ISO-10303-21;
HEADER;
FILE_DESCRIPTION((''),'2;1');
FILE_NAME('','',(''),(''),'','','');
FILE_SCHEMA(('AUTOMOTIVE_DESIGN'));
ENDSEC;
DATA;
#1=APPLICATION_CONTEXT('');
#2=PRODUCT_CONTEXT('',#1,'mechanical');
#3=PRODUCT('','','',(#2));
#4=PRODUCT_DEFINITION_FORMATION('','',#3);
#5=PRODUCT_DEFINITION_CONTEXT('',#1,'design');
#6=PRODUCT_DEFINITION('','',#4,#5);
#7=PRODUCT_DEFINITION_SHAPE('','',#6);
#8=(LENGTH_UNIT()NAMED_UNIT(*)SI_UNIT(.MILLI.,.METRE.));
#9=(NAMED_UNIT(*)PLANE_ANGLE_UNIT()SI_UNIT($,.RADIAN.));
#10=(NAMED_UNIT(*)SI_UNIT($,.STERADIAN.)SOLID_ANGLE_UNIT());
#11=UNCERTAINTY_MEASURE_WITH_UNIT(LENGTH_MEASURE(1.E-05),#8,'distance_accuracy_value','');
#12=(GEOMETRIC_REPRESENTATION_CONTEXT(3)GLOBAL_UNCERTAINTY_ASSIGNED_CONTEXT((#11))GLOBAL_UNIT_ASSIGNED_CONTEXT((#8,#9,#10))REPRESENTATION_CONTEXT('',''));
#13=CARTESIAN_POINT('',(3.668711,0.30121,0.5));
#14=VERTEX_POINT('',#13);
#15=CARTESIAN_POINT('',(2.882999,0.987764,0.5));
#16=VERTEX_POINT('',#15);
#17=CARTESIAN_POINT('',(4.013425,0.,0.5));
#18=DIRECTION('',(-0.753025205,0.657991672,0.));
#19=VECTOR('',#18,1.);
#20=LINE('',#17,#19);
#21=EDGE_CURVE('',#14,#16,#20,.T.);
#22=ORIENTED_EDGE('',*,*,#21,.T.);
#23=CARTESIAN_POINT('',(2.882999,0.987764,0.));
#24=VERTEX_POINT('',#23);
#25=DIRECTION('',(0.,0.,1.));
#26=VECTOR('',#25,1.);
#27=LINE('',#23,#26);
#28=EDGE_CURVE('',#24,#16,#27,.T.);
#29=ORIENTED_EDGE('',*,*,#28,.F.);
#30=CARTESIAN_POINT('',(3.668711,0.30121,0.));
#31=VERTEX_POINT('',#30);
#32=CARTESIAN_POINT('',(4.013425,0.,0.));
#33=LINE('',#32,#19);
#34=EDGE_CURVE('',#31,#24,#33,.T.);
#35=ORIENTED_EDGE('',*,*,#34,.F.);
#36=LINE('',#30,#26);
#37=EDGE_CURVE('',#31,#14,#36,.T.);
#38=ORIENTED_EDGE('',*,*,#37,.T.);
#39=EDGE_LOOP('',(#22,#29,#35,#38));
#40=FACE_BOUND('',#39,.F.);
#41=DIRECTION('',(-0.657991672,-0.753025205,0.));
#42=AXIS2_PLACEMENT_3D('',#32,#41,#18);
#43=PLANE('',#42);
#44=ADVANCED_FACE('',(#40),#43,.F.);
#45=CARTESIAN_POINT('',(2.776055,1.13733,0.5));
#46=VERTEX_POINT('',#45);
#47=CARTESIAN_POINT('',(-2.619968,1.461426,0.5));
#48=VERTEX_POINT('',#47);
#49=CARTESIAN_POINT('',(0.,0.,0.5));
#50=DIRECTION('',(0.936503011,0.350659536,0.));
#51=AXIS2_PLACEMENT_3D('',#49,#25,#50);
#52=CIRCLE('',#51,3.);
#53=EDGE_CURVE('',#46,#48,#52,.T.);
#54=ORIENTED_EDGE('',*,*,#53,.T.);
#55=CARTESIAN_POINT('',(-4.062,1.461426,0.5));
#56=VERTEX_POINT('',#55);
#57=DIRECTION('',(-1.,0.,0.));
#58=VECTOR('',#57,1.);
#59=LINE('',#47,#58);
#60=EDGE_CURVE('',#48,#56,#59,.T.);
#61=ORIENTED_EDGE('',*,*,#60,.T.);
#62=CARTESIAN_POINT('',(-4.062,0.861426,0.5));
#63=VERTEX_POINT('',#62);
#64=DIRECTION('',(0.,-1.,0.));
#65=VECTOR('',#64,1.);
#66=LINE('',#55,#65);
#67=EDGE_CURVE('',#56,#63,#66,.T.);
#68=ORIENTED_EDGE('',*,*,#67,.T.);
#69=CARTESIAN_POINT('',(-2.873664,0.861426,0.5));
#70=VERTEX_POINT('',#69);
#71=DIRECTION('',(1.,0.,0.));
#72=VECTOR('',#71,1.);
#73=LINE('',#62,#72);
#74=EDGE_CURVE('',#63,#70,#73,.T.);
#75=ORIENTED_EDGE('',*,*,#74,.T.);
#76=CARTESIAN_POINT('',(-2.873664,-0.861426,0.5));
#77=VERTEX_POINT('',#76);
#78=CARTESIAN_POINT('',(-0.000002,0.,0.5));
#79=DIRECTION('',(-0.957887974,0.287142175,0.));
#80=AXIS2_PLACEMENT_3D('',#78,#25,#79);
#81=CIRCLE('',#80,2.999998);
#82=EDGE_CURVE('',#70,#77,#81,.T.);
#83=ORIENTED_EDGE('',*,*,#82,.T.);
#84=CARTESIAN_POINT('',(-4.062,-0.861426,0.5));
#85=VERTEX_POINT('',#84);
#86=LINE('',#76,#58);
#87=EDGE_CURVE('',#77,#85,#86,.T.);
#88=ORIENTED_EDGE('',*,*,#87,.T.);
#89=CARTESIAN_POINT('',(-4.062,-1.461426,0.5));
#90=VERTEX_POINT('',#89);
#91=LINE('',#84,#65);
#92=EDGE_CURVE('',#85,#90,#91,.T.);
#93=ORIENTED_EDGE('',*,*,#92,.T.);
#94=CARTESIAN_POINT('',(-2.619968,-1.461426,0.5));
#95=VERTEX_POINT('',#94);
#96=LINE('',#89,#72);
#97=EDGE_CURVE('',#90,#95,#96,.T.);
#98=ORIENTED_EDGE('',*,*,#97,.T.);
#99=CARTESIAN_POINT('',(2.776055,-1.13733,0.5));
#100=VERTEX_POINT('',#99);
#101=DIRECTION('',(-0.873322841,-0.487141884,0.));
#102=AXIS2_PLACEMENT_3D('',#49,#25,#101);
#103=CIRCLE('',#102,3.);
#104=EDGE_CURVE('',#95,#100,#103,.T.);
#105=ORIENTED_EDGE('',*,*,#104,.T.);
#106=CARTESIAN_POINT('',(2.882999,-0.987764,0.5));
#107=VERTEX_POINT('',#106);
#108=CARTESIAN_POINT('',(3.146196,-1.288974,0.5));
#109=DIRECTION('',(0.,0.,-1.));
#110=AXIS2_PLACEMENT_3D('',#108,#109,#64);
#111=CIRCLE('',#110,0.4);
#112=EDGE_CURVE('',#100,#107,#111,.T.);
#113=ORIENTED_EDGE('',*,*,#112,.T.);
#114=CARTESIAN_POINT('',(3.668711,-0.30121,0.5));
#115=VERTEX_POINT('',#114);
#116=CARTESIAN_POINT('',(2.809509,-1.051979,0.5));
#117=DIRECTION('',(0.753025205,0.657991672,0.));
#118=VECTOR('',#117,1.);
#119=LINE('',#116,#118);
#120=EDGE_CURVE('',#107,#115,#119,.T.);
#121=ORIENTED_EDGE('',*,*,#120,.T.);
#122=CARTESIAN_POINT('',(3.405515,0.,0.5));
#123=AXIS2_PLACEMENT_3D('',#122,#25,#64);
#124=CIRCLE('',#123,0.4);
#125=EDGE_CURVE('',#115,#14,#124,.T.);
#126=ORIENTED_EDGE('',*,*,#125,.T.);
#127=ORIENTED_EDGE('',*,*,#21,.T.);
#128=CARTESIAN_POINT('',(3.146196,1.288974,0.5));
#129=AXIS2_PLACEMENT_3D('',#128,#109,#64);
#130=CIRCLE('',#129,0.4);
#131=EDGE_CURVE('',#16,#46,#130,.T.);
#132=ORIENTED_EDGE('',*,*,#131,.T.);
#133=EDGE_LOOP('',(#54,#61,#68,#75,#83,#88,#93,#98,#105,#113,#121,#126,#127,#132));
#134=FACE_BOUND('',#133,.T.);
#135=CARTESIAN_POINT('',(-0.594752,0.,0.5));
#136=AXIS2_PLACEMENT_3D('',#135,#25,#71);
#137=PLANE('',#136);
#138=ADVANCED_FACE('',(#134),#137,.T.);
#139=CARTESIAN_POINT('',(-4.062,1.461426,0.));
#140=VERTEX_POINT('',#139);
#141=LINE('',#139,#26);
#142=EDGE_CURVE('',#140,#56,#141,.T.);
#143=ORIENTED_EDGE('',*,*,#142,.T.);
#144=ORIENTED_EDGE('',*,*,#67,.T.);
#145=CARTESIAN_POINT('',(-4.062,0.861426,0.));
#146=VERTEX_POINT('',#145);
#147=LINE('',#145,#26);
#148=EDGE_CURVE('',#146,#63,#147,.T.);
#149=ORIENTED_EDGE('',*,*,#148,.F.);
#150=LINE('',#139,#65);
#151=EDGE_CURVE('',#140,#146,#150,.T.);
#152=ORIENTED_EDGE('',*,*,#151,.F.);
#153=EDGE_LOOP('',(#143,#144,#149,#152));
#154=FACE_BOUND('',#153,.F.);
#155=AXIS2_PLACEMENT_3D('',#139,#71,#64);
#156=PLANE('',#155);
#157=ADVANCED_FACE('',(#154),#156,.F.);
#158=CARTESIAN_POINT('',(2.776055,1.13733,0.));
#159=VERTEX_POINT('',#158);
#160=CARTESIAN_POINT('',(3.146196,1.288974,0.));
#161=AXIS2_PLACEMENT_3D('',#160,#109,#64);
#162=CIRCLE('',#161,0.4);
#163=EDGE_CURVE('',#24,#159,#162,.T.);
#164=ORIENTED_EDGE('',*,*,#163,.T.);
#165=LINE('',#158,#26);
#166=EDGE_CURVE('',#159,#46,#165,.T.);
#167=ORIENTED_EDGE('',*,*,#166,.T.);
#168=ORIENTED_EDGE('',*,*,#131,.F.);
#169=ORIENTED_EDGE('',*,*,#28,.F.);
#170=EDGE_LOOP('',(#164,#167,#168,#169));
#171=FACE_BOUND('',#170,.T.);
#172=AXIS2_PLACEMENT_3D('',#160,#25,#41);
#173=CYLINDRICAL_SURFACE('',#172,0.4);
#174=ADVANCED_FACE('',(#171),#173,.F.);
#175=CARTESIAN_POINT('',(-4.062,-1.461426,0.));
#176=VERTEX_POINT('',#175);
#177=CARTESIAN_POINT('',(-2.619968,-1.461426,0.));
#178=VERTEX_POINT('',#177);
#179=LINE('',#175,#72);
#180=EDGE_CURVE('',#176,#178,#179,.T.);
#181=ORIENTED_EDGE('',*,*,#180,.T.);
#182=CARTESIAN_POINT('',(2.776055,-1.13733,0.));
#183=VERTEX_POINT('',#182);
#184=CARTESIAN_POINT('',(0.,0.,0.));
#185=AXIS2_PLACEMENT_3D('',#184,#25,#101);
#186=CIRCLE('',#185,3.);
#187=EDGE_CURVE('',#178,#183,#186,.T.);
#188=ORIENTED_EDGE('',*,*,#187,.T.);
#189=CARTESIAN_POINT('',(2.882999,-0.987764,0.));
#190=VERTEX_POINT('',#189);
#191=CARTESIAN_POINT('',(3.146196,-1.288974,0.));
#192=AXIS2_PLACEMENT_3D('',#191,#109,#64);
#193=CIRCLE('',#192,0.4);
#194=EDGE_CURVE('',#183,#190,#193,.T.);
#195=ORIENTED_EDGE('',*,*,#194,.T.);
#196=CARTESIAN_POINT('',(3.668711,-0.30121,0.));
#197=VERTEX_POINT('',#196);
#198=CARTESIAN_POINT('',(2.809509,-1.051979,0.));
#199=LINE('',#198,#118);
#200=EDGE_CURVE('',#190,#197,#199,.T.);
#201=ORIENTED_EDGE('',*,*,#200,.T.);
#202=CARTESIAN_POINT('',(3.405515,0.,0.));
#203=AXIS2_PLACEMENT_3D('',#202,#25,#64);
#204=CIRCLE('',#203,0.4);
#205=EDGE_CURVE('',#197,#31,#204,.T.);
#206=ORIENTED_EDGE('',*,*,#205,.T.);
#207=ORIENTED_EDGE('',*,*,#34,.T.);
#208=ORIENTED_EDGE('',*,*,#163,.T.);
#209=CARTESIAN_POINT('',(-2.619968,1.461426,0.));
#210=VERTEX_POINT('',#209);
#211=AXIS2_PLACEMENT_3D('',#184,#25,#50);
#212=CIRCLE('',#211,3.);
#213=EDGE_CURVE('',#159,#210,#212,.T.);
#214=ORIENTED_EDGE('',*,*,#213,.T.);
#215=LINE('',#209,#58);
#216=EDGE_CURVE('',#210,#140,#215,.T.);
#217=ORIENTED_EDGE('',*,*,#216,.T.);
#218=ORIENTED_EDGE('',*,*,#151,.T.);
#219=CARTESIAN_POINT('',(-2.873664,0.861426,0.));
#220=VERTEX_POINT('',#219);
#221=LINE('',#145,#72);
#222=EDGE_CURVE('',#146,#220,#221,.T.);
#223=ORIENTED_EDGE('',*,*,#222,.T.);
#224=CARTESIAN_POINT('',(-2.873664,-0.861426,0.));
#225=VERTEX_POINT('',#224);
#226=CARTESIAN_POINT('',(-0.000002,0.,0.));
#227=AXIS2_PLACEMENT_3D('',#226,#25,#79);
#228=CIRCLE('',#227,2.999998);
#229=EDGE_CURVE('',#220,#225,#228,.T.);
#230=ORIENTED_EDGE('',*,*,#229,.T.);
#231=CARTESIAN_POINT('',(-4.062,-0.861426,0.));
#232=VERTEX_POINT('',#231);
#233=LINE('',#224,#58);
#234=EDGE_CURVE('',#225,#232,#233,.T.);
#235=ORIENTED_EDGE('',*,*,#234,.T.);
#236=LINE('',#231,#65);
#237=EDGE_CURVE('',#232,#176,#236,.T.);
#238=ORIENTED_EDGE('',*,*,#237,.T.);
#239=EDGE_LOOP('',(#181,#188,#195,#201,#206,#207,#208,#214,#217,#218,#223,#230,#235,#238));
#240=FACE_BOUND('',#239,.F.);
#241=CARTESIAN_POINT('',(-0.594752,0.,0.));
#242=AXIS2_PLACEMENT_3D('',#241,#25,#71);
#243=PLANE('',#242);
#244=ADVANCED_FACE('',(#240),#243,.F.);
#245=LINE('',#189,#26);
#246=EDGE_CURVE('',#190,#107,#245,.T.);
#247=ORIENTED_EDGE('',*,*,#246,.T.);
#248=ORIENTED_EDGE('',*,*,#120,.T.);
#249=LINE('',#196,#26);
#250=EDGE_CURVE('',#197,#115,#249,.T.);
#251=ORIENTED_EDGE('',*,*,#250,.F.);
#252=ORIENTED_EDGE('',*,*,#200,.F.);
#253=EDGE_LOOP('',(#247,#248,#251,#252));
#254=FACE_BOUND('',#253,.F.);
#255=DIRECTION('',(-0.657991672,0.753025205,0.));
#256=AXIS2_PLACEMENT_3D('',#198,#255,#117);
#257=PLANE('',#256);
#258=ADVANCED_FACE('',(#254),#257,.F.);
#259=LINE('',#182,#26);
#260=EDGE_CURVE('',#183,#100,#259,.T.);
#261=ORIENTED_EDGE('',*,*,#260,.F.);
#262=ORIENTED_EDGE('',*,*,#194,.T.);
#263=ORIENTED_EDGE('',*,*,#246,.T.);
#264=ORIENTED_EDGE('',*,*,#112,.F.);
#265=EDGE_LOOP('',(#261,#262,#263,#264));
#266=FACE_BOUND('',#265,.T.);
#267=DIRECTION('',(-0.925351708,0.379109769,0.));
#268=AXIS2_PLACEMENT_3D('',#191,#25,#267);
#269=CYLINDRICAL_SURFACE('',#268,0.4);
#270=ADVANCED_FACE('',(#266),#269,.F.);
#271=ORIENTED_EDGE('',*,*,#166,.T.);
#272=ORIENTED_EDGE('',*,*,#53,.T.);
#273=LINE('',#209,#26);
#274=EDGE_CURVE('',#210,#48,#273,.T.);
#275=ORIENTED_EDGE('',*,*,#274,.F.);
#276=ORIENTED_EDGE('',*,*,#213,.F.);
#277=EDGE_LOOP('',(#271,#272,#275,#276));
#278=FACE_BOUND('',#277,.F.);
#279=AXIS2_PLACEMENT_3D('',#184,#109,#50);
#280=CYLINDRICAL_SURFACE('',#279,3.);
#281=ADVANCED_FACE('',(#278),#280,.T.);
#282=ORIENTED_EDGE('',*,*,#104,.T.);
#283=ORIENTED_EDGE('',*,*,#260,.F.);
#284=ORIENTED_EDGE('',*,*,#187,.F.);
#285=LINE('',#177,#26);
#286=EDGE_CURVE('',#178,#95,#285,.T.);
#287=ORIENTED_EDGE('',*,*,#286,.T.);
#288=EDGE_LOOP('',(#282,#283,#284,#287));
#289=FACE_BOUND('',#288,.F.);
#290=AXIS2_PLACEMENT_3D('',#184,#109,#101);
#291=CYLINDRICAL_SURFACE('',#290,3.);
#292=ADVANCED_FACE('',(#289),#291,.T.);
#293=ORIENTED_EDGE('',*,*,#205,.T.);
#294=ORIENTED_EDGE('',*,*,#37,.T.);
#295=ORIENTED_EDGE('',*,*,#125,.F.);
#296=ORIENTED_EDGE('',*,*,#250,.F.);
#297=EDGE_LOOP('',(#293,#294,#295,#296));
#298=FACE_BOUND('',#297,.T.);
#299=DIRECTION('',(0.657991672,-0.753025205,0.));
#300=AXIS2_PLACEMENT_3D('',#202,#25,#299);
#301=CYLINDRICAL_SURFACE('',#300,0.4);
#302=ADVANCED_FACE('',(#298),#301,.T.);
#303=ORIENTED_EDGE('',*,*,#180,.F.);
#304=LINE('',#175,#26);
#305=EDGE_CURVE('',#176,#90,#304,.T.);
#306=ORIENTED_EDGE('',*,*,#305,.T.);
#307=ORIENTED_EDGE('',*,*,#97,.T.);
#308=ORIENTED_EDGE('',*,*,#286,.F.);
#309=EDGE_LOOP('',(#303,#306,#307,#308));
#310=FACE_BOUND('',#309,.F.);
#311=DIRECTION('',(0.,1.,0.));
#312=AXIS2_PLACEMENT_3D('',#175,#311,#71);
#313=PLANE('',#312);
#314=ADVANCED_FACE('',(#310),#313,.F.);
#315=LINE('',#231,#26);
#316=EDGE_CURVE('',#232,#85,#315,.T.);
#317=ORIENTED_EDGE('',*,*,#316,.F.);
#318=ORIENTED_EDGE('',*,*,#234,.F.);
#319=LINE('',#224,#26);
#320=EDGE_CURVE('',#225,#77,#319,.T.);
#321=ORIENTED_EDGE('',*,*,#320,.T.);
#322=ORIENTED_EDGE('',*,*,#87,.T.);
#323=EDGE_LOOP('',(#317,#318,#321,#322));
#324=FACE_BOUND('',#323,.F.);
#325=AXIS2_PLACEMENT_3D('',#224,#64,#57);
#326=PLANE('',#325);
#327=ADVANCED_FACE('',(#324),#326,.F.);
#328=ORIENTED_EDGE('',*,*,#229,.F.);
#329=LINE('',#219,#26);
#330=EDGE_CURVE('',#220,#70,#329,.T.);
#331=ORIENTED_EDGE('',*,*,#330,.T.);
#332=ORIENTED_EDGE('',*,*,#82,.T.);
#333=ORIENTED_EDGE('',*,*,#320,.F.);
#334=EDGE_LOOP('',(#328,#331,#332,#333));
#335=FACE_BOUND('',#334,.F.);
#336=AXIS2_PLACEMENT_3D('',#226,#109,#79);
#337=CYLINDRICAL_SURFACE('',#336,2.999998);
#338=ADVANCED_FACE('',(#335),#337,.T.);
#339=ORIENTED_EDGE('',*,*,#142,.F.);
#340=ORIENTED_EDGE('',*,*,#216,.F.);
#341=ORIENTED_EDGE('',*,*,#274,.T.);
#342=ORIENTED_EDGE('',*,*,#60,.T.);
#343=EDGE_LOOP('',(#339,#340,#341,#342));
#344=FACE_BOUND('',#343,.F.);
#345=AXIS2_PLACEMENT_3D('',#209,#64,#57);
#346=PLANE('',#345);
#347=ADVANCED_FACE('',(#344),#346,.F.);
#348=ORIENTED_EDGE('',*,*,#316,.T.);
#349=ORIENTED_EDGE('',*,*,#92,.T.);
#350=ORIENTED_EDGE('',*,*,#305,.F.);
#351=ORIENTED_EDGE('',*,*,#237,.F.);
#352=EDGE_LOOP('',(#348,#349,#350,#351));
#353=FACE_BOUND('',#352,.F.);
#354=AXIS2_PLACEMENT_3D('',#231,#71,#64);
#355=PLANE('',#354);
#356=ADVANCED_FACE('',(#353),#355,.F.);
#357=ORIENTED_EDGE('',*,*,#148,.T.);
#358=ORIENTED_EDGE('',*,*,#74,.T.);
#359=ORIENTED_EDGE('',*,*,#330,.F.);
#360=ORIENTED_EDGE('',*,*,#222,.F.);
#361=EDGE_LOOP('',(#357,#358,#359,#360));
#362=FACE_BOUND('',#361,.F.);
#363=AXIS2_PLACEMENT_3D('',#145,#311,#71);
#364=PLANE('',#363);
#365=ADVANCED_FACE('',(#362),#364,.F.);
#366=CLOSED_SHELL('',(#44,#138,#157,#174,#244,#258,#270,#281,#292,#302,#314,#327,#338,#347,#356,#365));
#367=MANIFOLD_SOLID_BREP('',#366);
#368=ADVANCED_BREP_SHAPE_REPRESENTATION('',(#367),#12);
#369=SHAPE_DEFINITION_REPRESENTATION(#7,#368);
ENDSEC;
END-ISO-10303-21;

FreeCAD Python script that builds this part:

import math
import FreeCAD as App
import Part
import Sketcher

V = App.Vector
Q = App.Units.Quantity


def edges_at(feature, points):
    """Names of the edges that pass closest to the given points."""
    edges = feature.Shape.Edges
    near = lambda p: min(range(len(edges)), key=lambda i: edges[i].distToShape(Part.Vertex(*p))[0])
    return sorted({f"Edge{near(p) + 1}" for p in points})

doc = App.newDocument("Part")
body = doc.addObject("PartDesign::Body", "Body")

# Sketch on XY plane
sketch1 = doc.addObject("Sketcher::SketchObject", "Sketch")
body.addObject(sketch1)
sketch1.AttachmentSupport = (doc.XY_Plane, [""])
sketch1.MapMode = "FlatFace"
sketch1.addGeometry(Part.LineSegment(V(-4.062, 0.861426, 0), V(-2.873664, 0.861426, 0)), False)
sketch1.addGeometry(Part.ArcOfCircle(Part.Circle(V(-0.000002, 0, 0), V(0, 0, 1), 2.999998), math.radians(163.313061), math.radians(196.686939)), False)
sketch1.addGeometry(Part.LineSegment(V(-2.873664, -0.861426, 0), V(-4.062, -0.861426, 0)), False)
sketch1.addGeometry(Part.LineSegment(V(-4.062, -0.861426, 0), V(-4.062, -1.461426, 0)), False)
sketch1.addGeometry(Part.LineSegment(V(-4.062, -1.461426, 0), V(-2.619968, -1.461426, 0)), False)
sketch1.addGeometry(Part.ArcOfCircle(Part.Circle(V(0, 0, 0), V(0, 0, 1), 3), math.radians(-150.847102), math.radians(-20.527661)), False)
sketch1.addGeometry(Part.LineSegment(V(2.809509, -1.051979, 0), V(4.013425, 0, 0)), False)
sketch1.addGeometry(Part.LineSegment(V(4.013425, 0, 0), V(2.809509, 1.051979, 0)), False)
sketch1.addGeometry(Part.ArcOfCircle(Part.Circle(V(0, 0, 0), V(0, 0, 1), 3), math.radians(20.527661), math.radians(150.847102)), False)
sketch1.addGeometry(Part.LineSegment(V(-2.619968, 1.461426, 0), V(-4.062, 1.461426, 0)), False)
sketch1.addGeometry(Part.LineSegment(V(-4.062, 1.461426, 0), V(-4.062, 0.861426, 0)), False)
sketch1.addConstraint(Sketcher.Constraint("Coincident", 0, 2, 1, 1))
sketch1.addConstraint(Sketcher.Constraint("Coincident", 1, 2, 2, 1))
sketch1.addConstraint(Sketcher.Constraint("Coincident", 2, 2, 3, 1))
sketch1.addConstraint(Sketcher.Constraint("Coincident", 3, 2, 4, 1))
sketch1.addConstraint(Sketcher.Constraint("Coincident", 4, 2, 5, 1))
sketch1.addConstraint(Sketcher.Constraint("Coincident", 5, 2, 6, 1))
sketch1.addConstraint(Sketcher.Constraint("Coincident", 6, 2, 7, 1))
sketch1.addConstraint(Sketcher.Constraint("Coincident", 7, 2, 8, 1))
sketch1.addConstraint(Sketcher.Constraint("Coincident", 8, 2, 9, 1))
sketch1.addConstraint(Sketcher.Constraint("Coincident", 9, 2, 10, 1))
sketch1.addConstraint(Sketcher.Constraint("Coincident", 10, 2, 0, 1))
sketch1.addConstraint(Sketcher.Constraint("Horizontal", 0))
sketch1.addConstraint(Sketcher.Constraint("Horizontal", 2))
sketch1.addConstraint(Sketcher.Constraint("Vertical", 3))
sketch1.addConstraint(Sketcher.Constraint("Horizontal", 4))
sketch1.addConstraint(Sketcher.Constraint("Horizontal", 9))
sketch1.addConstraint(Sketcher.Constraint("Vertical", 10))
sketch1.addConstraint(Sketcher.Constraint("Coincident", 1, 3, -1, 1))
sketch1.addConstraint(Sketcher.Constraint("Coincident", 5, 3, -1, 1))
sketch1.addConstraint(Sketcher.Constraint("Coincident", 8, 3, -1, 1))
sketch1.addConstraint(Sketcher.Constraint("Equal", 1, 5))
sketch1.addConstraint(Sketcher.Constraint("Equal", 5, 8))
sketch1.addConstraint(Sketcher.Constraint("Symmetric", 3, 2, 9, 2, -1))
sketch1.addConstraint(Sketcher.Constraint("PointOnObject", 6, 2, -1))
sketch1.addConstraint(Sketcher.Constraint("Vertical", 0, 2, 1, 2))
sketch1.addConstraint(Sketcher.Constraint("Vertical", 5, 2, 7, 2))
sketch1.addConstraint(Sketcher.Constraint("Radius", 1, Q("2.999998 mm")))
sketch1.addConstraint(Sketcher.Constraint("DistanceY", 3, 2, 3, 1, Q("0.6 mm")))
sketch1.addConstraint(Sketcher.Constraint("DistanceX", 2, 2, -1, 1, Q("4.062 mm")))
sketch1.addConstraint(Sketcher.Constraint("DistanceX", 0, 1, 0, 2, Q("1.188336 mm")))
sketch1.addConstraint(Sketcher.Constraint("DistanceX", -1, 1, 5, 2, Q("2.809509 mm")))
sketch1.addConstraint(Sketcher.Constraint("Distance", 6, Q("1.598773 mm")))
pad1 = doc.addObject("PartDesign::Pad", "Pad")
body.addObject(pad1)
pad1.Profile = sketch1
pad1.Length = 0.5
doc.recompute()

fillet = doc.addObject("PartDesign::Fillet", "Fillet")
body.addObject(fillet)
fillet.Base = (pad1, edges_at(pad1, [(4.013, 0, 0.25), (2.81, 1.052, 0.25), (2.81, -1.052, 0.25)]))
fillet.Radius = 0.4

doc.recompute()
